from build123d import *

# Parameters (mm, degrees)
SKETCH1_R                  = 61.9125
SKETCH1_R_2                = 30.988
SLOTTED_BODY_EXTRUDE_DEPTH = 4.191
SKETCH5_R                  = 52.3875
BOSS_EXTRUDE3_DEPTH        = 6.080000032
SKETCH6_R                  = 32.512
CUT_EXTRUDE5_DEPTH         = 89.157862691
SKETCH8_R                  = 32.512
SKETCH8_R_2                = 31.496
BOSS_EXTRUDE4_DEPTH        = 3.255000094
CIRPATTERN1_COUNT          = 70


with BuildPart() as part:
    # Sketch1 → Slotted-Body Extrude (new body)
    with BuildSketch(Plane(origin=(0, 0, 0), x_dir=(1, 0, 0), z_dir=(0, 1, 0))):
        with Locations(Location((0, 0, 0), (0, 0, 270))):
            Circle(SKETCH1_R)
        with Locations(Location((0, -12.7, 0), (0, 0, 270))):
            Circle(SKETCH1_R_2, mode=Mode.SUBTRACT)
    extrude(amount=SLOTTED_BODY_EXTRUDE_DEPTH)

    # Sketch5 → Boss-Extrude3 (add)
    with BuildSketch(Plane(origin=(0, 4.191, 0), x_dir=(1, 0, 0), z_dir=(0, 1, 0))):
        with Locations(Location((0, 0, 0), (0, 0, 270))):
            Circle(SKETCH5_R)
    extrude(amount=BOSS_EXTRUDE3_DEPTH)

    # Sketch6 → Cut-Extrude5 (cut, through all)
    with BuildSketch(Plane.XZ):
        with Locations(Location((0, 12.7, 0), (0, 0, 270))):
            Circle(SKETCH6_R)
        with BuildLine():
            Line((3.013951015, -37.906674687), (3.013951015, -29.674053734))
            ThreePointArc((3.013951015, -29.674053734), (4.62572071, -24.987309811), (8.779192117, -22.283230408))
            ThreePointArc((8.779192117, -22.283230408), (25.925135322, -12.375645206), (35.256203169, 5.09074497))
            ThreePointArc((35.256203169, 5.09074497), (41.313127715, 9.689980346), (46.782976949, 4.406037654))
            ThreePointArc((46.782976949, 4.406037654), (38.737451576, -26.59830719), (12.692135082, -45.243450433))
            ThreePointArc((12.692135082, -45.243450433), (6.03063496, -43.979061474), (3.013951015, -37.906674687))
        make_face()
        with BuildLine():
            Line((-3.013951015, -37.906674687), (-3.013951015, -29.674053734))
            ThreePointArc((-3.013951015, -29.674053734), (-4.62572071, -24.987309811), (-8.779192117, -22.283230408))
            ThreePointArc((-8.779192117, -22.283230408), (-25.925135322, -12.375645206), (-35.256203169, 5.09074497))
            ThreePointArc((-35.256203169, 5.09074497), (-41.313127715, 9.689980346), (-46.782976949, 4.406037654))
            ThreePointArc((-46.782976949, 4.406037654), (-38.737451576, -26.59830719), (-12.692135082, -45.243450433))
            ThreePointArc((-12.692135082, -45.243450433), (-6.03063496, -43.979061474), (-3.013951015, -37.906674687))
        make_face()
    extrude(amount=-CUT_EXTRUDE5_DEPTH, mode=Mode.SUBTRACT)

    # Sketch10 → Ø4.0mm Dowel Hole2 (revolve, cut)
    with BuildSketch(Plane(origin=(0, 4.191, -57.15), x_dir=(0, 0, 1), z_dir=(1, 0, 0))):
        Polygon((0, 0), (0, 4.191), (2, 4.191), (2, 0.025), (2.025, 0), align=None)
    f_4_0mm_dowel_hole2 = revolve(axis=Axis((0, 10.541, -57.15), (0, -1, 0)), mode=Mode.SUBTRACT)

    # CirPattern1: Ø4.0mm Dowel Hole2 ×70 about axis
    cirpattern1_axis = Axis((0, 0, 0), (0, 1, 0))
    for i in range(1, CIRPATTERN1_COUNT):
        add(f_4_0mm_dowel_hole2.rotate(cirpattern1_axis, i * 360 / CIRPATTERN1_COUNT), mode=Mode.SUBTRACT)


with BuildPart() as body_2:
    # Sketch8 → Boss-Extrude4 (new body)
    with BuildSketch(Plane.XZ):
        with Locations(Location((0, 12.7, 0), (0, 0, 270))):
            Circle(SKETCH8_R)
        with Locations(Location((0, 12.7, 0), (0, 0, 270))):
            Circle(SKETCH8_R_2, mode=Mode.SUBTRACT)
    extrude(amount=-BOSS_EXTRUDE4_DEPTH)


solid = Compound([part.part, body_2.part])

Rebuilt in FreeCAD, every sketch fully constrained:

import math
import FreeCAD as App
import Part
import Sketcher

V = App.Vector
Q = App.Units.Quantity

doc = App.newDocument("Part")
body = doc.addObject("PartDesign::Body", "Body")

sketch1 = body.newObject("Sketcher::SketchObject", "Sketch")
sketch1.AttachmentSupport = (doc.getObject("XZ_Plane"), [""])
sketch1.MapMode = "FlatFace"
sketch1.addGeometry([
    Part.Circle(V(0, 0, 0), V(0, 0, 1), 62),
    Part.Circle(V(0, 13, 0), V(0, 0, 1), 31),
], False)
sketch1.addConstraint([
    Sketcher.Constraint("Coincident", 0, 3, -1, 1),
    Sketcher.Constraint("PointOnObject", 1, 3, -2),
    Sketcher.Constraint("Diameter", 1, Q("2.44 in")),
    Sketcher.Constraint("Diameter", 0, Q("4.875 in")),
    Sketcher.Constraint("DistanceY", -1, 1, 1, 3, Q("0.5 in")),
])
pad1 = body.newObject("PartDesign::Pad", "Pad")
pad1.Profile = sketch1
pad1.Length = Q("0.165 in")
pad1.Reversed = True

sketch2 = body.newObject("Sketcher::SketchObject", "Sketch001")
sketch2.AttachmentSupport = (doc.getObject("XZ_Plane"), [""])
sketch2.MapMode = "FlatFace"
sketch2.AttachmentOffset = App.Placement(V(0, 0, -0.165 * 25.4), App.Rotation())
sketch2.addGeometry(Part.Circle(V(0, 0, 0), V(0, 0, 1), 52), False)
sketch2.addConstraint([
    Sketcher.Constraint("Coincident", 0, 3, -1, 1),
    Sketcher.Constraint("Diameter", 0, Q("4.125 in")),
])
pad2 = body.newObject("PartDesign::Pad", "Pad001")
pad2.Profile = sketch2
pad2.Length = 6.08
pad2.Reversed = True

sketch3 = body.newObject("Sketcher::SketchObject", "Sketch002")
sketch3.AttachmentSupport = (doc.getObject("XZ_Plane"), [""])
sketch3.MapMode = "FlatFace"
sketch3.addGeometry([
    Part.Circle(V(0, 13, 0), V(0, 0, 1), 33),
    Part.LineSegment(V(3, -30, 0), V(3, -38, 0)),
    Part.ArcOfCircle(Part.Circle(V(11, -38, 0), V(0, 0, 1), 8), math.radians(-180), math.radians(-74)),
    Part.ArcOfCircle(Part.Circle(V(0, 0, 0), V(0, 0, 1), 47), math.radians(-74), math.radians(5)),
    Part.ArcOfCircle(Part.Circle(V(41, 4, 0), V(0, 0, 1), 6), math.radians(5), math.radians(168)),
    Part.ArcOfCircle(Part.Circle(V(0, 13, 0), V(0, 0, 1), 36), math.radians(-76), math.radians(-12)),
    Part.ArcOfCircle(Part.Circle(V(11, -30, 0), V(0, 0, 1), 8), math.radians(104), math.radians(180)),
    Part.LineSegment(V(-3, -38, 0), V(-3, -30, 0)),
    Part.ArcOfCircle(Part.Circle(V(-11, -30, 0), V(0, 0, 1), 8), math.radians(0), math.radians(76)),
    Part.ArcOfCircle(Part.Circle(V(0, 13, 0), V(0, 0, 1), 36), math.radians(-168), math.radians(-104)),
    Part.ArcOfCircle(Part.Circle(V(-41, 4, 0), V(0, 0, 1), 6), math.radians(12), math.radians(175)),
    Part.ArcOfCircle(Part.Circle(V(0, 0, 0), V(0, 0, 1), 47), math.radians(175), math.radians(254)),
    Part.ArcOfCircle(Part.Circle(V(-11, -38, 0), V(0, 0, 1), 8), math.radians(-106), math.radians(0)),
], False)
sketch3.addConstraint([
    Sketcher.Constraint("Tangent", 1, 2, 2, 1),
    Sketcher.Constraint("Tangent", 2, 2, 3, 1),
    Sketcher.Constraint("Tangent", 3, 2, 4, 1),
    Sketcher.Constraint("Tangent", 4, 2, 5, 2),
    Sketcher.Constraint("Tangent", 5, 1, 6, 1),
    Sketcher.Constraint("Tangent", 6, 2, 1, 1),
    Sketcher.Constraint("Tangent", 7, 2, 8, 1),
    Sketcher.Constraint("Tangent", 8, 2, 9, 2),
    Sketcher.Constraint("Tangent", 9, 1, 10, 1),
    Sketcher.Constraint("Tangent", 10, 2, 11, 1),
    Sketcher.Constraint("Tangent", 11, 2, 12, 1),
    Sketcher.Constraint("Tangent", 12, 2, 7, 1),
    Sketcher.Constraint("Vertical", 1),
    Sketcher.Constraint("Vertical", 7),
    Sketcher.Constraint("Coincident", 3, 3, -1, 1),
    Sketcher.Constraint("Coincident", 11, 3, -1, 1),
    Sketcher.Constraint("Coincident", 5, 3, 0, 3),
    Sketcher.Constraint("Coincident", 9, 3, 0, 3),
    Sketcher.Constraint("Equal", 2, 6),
    Sketcher.Constraint("Equal", 6, 8),
    Sketcher.Constraint("Equal", 5, 9),
    Sketcher.Constraint("Equal", 4, 10),
    Sketcher.Constraint("Equal", 3, 11),
    Sketcher.Constraint("Equal", 8, 12),
    Sketcher.Constraint("Symmetric", 6, 3, 8, 3, -2),
    Sketcher.Constraint("Radius", 2, Q("0.3 in")),
    Sketcher.Constraint("Diameter", 0, Q("2.56 in")),
    Sketcher.Constraint("Radius", 3, Q("1.85 in")),
    Sketcher.Constraint("Radius", 4, Q("0.23 in")),
    Sketcher.Constraint("Radius", 5, Q("1.42 in")),
    Sketcher.Constraint("DistanceY", -1, 1, 0, 3, Q("0.5 in")),
    Sketcher.Constraint("DistanceY", 1, 2, 1, 1, 8.232621),
])
pocket1 = body.newObject("PartDesign::Pocket", "Pocket")
pocket1.Profile = sketch3
pocket1.Type = "ThroughAll"

sketch4 = body.newObject("Sketcher::SketchObject", "Sketch003")
sketch4.AttachmentSupport = (doc.getObject("YZ_Plane"), [""])
sketch4.MapMode = "FlatFace"
sketch4.addGeometry([
    Part.LineSegment(V(0, -57.15, 0), V(4.191, -57.15, 0)),
    Part.LineSegment(V(4.191, -57.15, 0), V(4.191, -55.125, 0)),
    Part.LineSegment(V(4.191, -55.125, 0), V(4.166, -55.15, 0)),
    Part.LineSegment(V(4.166, -55.15, 0), V(0, -55.15, 0)),
    Part.LineSegment(V(0, -55.15, 0), V(0, -57.15, 0)),
], False)
sketch4.addGeometry(Part.LineSegment(V(4.191, -57.15, 0), V(0, -57.15, 0)), True)
sketch4.addConstraint([
    Sketcher.Constraint("Coincident", 0, 2, 1, 1),
    Sketcher.Constraint("Coincident", 1, 2, 2, 1),
    Sketcher.Constraint("Coincident", 2, 2, 3, 1),
    Sketcher.Constraint("Coincident", 3, 2, 4, 1),
    Sketcher.Constraint("Coincident", 4, 2, 0, 1),
    Sketcher.Constraint("Horizontal", 0),
    Sketcher.Constraint("Vertical", 1),
    Sketcher.Constraint("Horizontal", 3),
    Sketcher.Constraint("Vertical", 4),
    Sketcher.Constraint("Horizontal", 5),
    Sketcher.Constraint("Coincident", 5, 1, 0, 2),
    Sketcher.Constraint("PointOnObject", 3, 2, -2),
    Sketcher.Constraint("PointOnObject", 5, 2, -2),
    Sketcher.Constraint("Angle", 2, Q("-135 deg")),
    Sketcher.Constraint("DistanceX", 0, 1, 0, 2, Q("0.165 in")),
    Sketcher.Constraint("DistanceY", 0, 2, -1, 1, Q("2.25 in")),
    Sketcher.Constraint("DistanceX", 3, 2, 3, 1, 4.166),
    Sketcher.Constraint("DistanceY", 1, 1, 1, 2, 2.025),
])
groove = body.newObject("PartDesign::Groove", "Groove")
groove.Profile = sketch4
groove.ReferenceAxis = (sketch4, ["Axis0"])
groove.Angle = 360
doc.recompute()

polarpattern = body.newObject("PartDesign::PolarPattern", "PolarPattern")
polarpattern.Originals = [groove]
polarpattern.Axis = (doc.getObject("Y_Axis"), [""])
polarpattern.Angle = 360
polarpattern.Occurrences = 70
body.Tip = polarpattern
body2 = doc.addObject("PartDesign::Body", "Body001")

sketch5 = body2.newObject("Sketcher::SketchObject", "Sketch004")
sketch5.AttachmentSupport = (doc.getObject("XZ_Plane001"), [""])
sketch5.MapMode = "FlatFace"
sketch5.addGeometry([
    Part.Circle(V(0, 13, 0), V(0, 0, 1), 33),
    Part.Circle(V(0, 13, 0), V(0, 0, 1), 31),
], False)
sketch5.addConstraint([
    Sketcher.Constraint("Coincident", 1, 3, 0, 3),
    Sketcher.Constraint("PointOnObject", 0, 3, -2),
    Sketcher.Constraint("Diameter", 0, Q("2.56 in")),
    Sketcher.Constraint("Diameter", 1, Q("2.48 in")),
    Sketcher.Constraint("DistanceY", -1, 1, 0, 3, Q("0.5 in")),
])
pad3 = body2.newObject("PartDesign::Pad", "Pad002")
pad3.Profile = sketch5
pad3.Length = 3.255
pad3.Reversed = True

doc.recompute()
